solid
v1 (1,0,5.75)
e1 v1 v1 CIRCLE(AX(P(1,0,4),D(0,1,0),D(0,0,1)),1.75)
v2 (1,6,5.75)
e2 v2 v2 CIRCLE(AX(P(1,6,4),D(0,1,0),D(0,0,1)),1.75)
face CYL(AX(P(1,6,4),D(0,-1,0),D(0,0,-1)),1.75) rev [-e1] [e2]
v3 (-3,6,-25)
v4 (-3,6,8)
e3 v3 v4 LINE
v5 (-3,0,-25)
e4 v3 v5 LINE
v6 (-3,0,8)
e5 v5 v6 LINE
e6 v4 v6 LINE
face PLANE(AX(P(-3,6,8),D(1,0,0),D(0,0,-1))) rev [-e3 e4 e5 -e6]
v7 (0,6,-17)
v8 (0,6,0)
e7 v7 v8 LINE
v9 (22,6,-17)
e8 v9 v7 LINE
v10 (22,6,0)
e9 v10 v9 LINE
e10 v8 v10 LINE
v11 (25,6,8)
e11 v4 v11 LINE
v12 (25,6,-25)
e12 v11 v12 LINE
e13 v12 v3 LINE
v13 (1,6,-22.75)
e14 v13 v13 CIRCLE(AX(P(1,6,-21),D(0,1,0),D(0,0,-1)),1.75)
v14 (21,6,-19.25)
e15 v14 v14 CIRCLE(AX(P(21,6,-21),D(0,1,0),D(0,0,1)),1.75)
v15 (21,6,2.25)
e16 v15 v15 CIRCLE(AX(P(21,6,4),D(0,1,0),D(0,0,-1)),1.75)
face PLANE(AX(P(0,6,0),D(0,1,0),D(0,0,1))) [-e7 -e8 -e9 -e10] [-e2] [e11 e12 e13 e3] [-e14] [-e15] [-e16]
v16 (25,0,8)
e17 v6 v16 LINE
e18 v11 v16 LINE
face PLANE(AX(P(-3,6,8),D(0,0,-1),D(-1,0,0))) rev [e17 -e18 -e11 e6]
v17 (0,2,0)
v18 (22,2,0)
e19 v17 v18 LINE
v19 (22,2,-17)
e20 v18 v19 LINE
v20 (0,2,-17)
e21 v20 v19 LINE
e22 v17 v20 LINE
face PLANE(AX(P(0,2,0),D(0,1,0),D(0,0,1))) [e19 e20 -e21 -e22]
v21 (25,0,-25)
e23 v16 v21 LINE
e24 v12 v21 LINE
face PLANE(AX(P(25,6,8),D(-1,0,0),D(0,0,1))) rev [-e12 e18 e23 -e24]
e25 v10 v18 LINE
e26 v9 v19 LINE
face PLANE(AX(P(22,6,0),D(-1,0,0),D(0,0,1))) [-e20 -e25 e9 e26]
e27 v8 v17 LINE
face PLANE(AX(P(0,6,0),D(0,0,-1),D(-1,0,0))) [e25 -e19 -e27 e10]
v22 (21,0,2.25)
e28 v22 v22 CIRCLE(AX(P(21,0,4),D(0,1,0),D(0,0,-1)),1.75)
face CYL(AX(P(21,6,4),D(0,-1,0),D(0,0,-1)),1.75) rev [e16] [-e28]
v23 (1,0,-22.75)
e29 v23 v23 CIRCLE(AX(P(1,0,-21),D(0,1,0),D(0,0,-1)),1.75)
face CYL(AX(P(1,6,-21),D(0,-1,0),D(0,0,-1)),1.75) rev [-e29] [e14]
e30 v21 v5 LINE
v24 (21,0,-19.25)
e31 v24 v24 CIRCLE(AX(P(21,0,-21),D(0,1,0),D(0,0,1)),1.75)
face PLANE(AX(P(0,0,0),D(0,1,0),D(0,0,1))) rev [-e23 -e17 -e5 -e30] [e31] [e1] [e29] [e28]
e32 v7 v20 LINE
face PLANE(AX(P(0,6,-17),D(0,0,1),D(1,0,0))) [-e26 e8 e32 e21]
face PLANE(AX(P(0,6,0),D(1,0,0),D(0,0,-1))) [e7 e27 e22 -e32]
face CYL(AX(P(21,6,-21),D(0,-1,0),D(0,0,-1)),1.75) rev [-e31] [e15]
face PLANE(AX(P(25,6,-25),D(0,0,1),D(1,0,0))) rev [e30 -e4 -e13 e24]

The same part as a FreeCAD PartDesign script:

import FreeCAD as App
import Part
import Sketcher


def add_polygon(sketch, points):
    """Adds a closed chain of lines whose ends are joined by coincident constraints."""
    first, n = sketch.GeometryCount, len(points)
    for a, b in zip(points, points[1:] + points[:1]):
        sketch.addGeometry(Part.LineSegment(App.Vector(*a, 0), App.Vector(*b, 0)), False)
    for i in range(n):
        sketch.addConstraint(Sketcher.Constraint("Coincident", first + i, 2, first + (i + 1) % n, 1))

doc = App.newDocument("Part")
params = doc.addObject("Spreadsheet::Sheet", "Params")
for row, (alias, value) in enumerate([
    ("sketch1_width", "22 mm"),
    ("sketch1_height", "17 mm"),
    ("pad1_length", "2 mm"),
    ("sketch2_diameter", "3.5 mm"),
    ("sketch2_width", "28 mm"),
    ("sketch2_width2", "22 mm"),
    ("sketch2_height", "33 mm"),
    ("sketch2_height2", "17 mm"),
    ("pad2_length", "6 mm"),
], start=1):
    params.set(f"A{row}", alias)
    params.set(f"B{row}", "=" + value)
    params.setAlias(f"B{row}", alias)

body = doc.addObject("PartDesign::Body", "Body")

# Sketch on XZ plane
sketch1 = body.newObject("Sketcher::SketchObject", "Sketch")
sketch1.AttachmentSupport = (doc.getObject("XZ_Plane"), [""])
sketch1.MapMode = "FlatFace"
add_polygon(sketch1, [(0, -17), (0, 0), (22, 0), (22, -17)])  # lines 0-3
sketch1.addConstraint([
    Sketcher.Constraint("Vertical", 0),
    Sketcher.Constraint("Horizontal", 1),
    Sketcher.Constraint("Vertical", 2),
    Sketcher.Constraint("Horizontal", 3),
    Sketcher.Constraint("Coincident", 0, 2, -1, 1),
    Sketcher.Constraint("DistanceX", 1, 1, 1, 2, 22.0),
    Sketcher.Constraint("DistanceY", 0, 1, 0, 2, 17.0),
])
sketch1.setExpression("Constraints[9]", "Params.sketch1_width")
sketch1.setExpression("Constraints[10]", "Params.sketch1_height")
pad1 = body.newObject("PartDesign::Pad", "Pad")
pad1.Profile = sketch1
pad1.setExpression("Length", "Params.pad1_length")
pad1.Reversed = True

# Sketch on XZ plane
sketch2 = body.newObject("Sketcher::SketchObject", "Sketch001")
sketch2.AttachmentSupport = (doc.getObject("XZ_Plane"), [""])
sketch2.MapMode = "FlatFace"
add_polygon(sketch2, [(-3, -25), (-3, 8), (25, 8), (25, -25)])  # lines 0-3
sketch2.addGeometry(Part.Circle(App.Vector(1, 4, 0), App.Vector(0, 0, 1), 1.8), False)  # 4
sketch2.addGeometry(Part.Circle(App.Vector(21, 4, 0), App.Vector(0, 0, 1), 1.8), False)  # 5
sketch2.addGeometry(Part.Circle(App.Vector(1, -21, 0), App.Vector(0, 0, 1), 1.8), False)  # 6
add_polygon(sketch2, [(22, 0), (0, 0), (0, -17), (22, -17)])  # lines 7-10
sketch2.addGeometry(Part.Circle(App.Vector(21, -21, 0), App.Vector(0, 0, 1), 1.8), False)  # 11
sketch2.addConstraint([
    Sketcher.Constraint("Vertical", 0),
    Sketcher.Constraint("Horizontal", 1),
    Sketcher.Constraint("Vertical", 2),
    Sketcher.Constraint("Horizontal", 3),
    Sketcher.Constraint("Horizontal", 7),
    Sketcher.Constraint("Vertical", 8),
    Sketcher.Constraint("Horizontal", 9),
    Sketcher.Constraint("Vertical", 10),
    Sketcher.Constraint("Coincident", 7, 2, -1, 1),
    Sketcher.Constraint("Equal", 4, 5),
    Sketcher.Constraint("Equal", 5, 6),
    Sketcher.Constraint("Equal", 6, 11),
    Sketcher.Constraint("Horizontal", 4, 3, 5, 3),
    Sketcher.Constraint("Horizontal", 6, 3, 11, 3),
    Sketcher.Constraint("Vertical", 4, 3, 6, 3),
    Sketcher.Constraint("Vertical", 5, 3, 11, 3),
    Sketcher.Constraint("Diameter", 4, 3.5),
    Sketcher.Constraint("DistanceX", 1, 1, 1, 2, 28.0),
    Sketcher.Constraint("DistanceX", 7, 2, 7, 1, 22.0),
    Sketcher.Constraint("DistanceY", 0, 1, 0, 2, 33.0),
    Sketcher.Constraint("DistanceY", 8, 2, 8, 1, 17.0),
    Sketcher.Constraint("DistanceX", -1, 1, 4, 3, 1.0),
    Sketcher.Constraint("DistanceY", -1, 1, 4, 3, 4.0),
    Sketcher.Constraint("DistanceX", -1, 1, 5, 3, 21.0),
    Sketcher.Constraint("DistanceY", 6, 3, -1, 1, 21.0),
    Sketcher.Constraint("DistanceX", 0, 2, -1, 1, 3.0),
    Sketcher.Constraint("DistanceY", -1, 1, 0, 2, 8.0),
])
sketch2.setExpression("Constraints[24]", "Params.sketch2_diameter")
sketch2.setExpression("Constraints[25]", "Params.sketch2_width")
sketch2.setExpression("Constraints[26]", "Params.sketch2_width2")
sketch2.setExpression("Constraints[27]", "Params.sketch2_height")
sketch2.setExpression("Constraints[28]", "Params.sketch2_height2")
pad2 = body.newObject("PartDesign::Pad", "Pad001")
pad2.Profile = sketch2
pad2.setExpression("Length", "Params.pad2_length")
pad2.Reversed = True

doc.recompute()
